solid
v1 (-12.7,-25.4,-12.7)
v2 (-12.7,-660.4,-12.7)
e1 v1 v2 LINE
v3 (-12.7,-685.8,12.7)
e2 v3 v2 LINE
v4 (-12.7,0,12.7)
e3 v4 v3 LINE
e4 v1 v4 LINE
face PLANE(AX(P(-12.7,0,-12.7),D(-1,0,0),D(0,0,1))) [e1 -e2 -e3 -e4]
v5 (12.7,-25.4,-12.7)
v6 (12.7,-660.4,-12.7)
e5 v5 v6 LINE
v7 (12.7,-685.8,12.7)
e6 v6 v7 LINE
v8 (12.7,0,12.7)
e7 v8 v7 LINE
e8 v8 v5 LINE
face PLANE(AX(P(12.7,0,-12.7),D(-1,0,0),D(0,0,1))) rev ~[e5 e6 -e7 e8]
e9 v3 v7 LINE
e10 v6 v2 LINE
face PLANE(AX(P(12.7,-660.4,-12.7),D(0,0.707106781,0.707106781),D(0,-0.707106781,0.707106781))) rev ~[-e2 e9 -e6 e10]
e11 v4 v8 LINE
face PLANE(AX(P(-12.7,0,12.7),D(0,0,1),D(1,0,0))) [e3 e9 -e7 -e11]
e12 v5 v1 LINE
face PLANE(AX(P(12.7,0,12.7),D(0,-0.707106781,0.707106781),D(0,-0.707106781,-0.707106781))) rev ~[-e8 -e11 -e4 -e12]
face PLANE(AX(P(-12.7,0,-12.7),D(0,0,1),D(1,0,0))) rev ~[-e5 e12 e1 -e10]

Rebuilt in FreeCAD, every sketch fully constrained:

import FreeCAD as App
import Part
import Sketcher
Q = App.Units.Quantity

doc = App.newDocument("Part")
body = doc.addObject("PartDesign::Body", "Body")

sketch1 = body.newObject("Sketcher::SketchObject", "Sketch")
sketch1.AttachmentSupport = (doc.getObject("XZ_Plane"), [""])
sketch1.MapMode = "FlatFace"
sketch1.addGeometry(Part.LineSegment(App.Vector(-13, 13, 0), App.Vector(-13, -13, 0)), False)
sketch1.addGeometry(Part.LineSegment(App.Vector(-13, -13, 0), App.Vector(13, -13, 0)), False)
sketch1.addGeometry(Part.LineSegment(App.Vector(13, -13, 0), App.Vector(13, 13, 0)), False)
sketch1.addGeometry(Part.LineSegment(App.Vector(13, 13, 0), App.Vector(-13, 13, 0)), False)
sketch1.addConstraint(Sketcher.Constraint("Coincident", 0, 2, 1, 1))
sketch1.addConstraint(Sketcher.Constraint("Coincident", 1, 2, 2, 1))
sketch1.addConstraint(Sketcher.Constraint("Coincident", 2, 2, 3, 1))
sketch1.addConstraint(Sketcher.Constraint("Coincident", 3, 2, 0, 1))
sketch1.addConstraint(Sketcher.Constraint("Vertical", 0))
sketch1.addConstraint(Sketcher.Constraint("Horizontal", 1))
sketch1.addConstraint(Sketcher.Constraint("Vertical", 2))
sketch1.addConstraint(Sketcher.Constraint("Horizontal", 3))
sketch1.addConstraint(Sketcher.Constraint("Symmetric", 0, 2, 2, 2, -1, 1))
sketch1.addConstraint(Sketcher.Constraint("Equal", 3, 0))
sketch1.addConstraint(Sketcher.Constraint("DistanceX", 1, 1, 1, 2, Q("1 in")))
pad1 = body.newObject("PartDesign::Pad", "Pad")
pad1.Profile = sketch1
pad1.Length = Q("27 in")

sketch2 = body.newObject("Sketcher::SketchObject", "Sketch001")
sketch2.AttachmentSupport = (doc.getObject("YZ_Plane"), [""])
sketch2.MapMode = "FlatFace"
sketch2.AttachmentOffset = App.Placement(App.Vector(0, 0, 0.5 * 25.4), App.Rotation())
sketch2.addGeometry(Part.LineSegment(App.Vector(-660, -13, 0), App.Vector(-686, 13, 0)), False)
sketch2.addGeometry(Part.LineSegment(App.Vector(-686, 13, 0), App.Vector(-686, -13, 0)), False)
sketch2.addGeometry(Part.LineSegment(App.Vector(-686, -13, 0), App.Vector(-660, -13, 0)), False)
sketch2.addGeometry(Part.LineSegment(App.Vector(0, -13, 0), App.Vector(0, 13, 0)), False)
sketch2.addGeometry(Part.LineSegment(App.Vector(0, 13, 0), App.Vector(-25, -13, 0)), False)
sketch2.addGeometry(Part.LineSegment(App.Vector(-25, -13, 0), App.Vector(0, -13, 0)), False)
sketch2.addConstraint(Sketcher.Constraint("Coincident", 0, 2, 1, 1))
sketch2.addConstraint(Sketcher.Constraint("Coincident", 1, 2, 2, 1))
sketch2.addConstraint(Sketcher.Constraint("Coincident", 2, 2, 0, 1))
sketch2.addConstraint(Sketcher.Constraint("Coincident", 3, 2, 4, 1))
sketch2.addConstraint(Sketcher.Constraint("Coincident", 4, 2, 5, 1))
sketch2.addConstraint(Sketcher.Constraint("Coincident", 5, 2, 3, 1))
sketch2.addConstraint(Sketcher.Constraint("Vertical", 1))
sketch2.addConstraint(Sketcher.Constraint("Horizontal", 2))
sketch2.addConstraint(Sketcher.Constraint("Vertical", 3))
sketch2.addConstraint(Sketcher.Constraint("Horizontal", 5))
sketch2.addConstraint(Sketcher.Constraint("Symmetric", 3, 2, 5, 2, -1, 1))
sketch2.addConstraint(Sketcher.Constraint("Perpendicular", 0, 4))
sketch2.addConstraint(Sketcher.Constraint("Horizontal", 0, 2, 3, 2))
sketch2.addConstraint(Sketcher.Constraint("Horizontal", 2, 2, 4, 2))
sketch2.addConstraint(Sketcher.Constraint("Equal", 2, 5))
sketch2.addConstraint(Sketcher.Constraint("DistanceX", 2, 1, 2, 2, Q("1 in")))
sketch2.addConstraint(Sketcher.Constraint("DistanceX", 0, 2, -1, 1, Q("27 in")))
pocket1 = body.newObject("PartDesign::Pocket", "Pocket")
pocket1.Profile = sketch2
pocket1.Type = "ThroughAll"

doc.recompute()
